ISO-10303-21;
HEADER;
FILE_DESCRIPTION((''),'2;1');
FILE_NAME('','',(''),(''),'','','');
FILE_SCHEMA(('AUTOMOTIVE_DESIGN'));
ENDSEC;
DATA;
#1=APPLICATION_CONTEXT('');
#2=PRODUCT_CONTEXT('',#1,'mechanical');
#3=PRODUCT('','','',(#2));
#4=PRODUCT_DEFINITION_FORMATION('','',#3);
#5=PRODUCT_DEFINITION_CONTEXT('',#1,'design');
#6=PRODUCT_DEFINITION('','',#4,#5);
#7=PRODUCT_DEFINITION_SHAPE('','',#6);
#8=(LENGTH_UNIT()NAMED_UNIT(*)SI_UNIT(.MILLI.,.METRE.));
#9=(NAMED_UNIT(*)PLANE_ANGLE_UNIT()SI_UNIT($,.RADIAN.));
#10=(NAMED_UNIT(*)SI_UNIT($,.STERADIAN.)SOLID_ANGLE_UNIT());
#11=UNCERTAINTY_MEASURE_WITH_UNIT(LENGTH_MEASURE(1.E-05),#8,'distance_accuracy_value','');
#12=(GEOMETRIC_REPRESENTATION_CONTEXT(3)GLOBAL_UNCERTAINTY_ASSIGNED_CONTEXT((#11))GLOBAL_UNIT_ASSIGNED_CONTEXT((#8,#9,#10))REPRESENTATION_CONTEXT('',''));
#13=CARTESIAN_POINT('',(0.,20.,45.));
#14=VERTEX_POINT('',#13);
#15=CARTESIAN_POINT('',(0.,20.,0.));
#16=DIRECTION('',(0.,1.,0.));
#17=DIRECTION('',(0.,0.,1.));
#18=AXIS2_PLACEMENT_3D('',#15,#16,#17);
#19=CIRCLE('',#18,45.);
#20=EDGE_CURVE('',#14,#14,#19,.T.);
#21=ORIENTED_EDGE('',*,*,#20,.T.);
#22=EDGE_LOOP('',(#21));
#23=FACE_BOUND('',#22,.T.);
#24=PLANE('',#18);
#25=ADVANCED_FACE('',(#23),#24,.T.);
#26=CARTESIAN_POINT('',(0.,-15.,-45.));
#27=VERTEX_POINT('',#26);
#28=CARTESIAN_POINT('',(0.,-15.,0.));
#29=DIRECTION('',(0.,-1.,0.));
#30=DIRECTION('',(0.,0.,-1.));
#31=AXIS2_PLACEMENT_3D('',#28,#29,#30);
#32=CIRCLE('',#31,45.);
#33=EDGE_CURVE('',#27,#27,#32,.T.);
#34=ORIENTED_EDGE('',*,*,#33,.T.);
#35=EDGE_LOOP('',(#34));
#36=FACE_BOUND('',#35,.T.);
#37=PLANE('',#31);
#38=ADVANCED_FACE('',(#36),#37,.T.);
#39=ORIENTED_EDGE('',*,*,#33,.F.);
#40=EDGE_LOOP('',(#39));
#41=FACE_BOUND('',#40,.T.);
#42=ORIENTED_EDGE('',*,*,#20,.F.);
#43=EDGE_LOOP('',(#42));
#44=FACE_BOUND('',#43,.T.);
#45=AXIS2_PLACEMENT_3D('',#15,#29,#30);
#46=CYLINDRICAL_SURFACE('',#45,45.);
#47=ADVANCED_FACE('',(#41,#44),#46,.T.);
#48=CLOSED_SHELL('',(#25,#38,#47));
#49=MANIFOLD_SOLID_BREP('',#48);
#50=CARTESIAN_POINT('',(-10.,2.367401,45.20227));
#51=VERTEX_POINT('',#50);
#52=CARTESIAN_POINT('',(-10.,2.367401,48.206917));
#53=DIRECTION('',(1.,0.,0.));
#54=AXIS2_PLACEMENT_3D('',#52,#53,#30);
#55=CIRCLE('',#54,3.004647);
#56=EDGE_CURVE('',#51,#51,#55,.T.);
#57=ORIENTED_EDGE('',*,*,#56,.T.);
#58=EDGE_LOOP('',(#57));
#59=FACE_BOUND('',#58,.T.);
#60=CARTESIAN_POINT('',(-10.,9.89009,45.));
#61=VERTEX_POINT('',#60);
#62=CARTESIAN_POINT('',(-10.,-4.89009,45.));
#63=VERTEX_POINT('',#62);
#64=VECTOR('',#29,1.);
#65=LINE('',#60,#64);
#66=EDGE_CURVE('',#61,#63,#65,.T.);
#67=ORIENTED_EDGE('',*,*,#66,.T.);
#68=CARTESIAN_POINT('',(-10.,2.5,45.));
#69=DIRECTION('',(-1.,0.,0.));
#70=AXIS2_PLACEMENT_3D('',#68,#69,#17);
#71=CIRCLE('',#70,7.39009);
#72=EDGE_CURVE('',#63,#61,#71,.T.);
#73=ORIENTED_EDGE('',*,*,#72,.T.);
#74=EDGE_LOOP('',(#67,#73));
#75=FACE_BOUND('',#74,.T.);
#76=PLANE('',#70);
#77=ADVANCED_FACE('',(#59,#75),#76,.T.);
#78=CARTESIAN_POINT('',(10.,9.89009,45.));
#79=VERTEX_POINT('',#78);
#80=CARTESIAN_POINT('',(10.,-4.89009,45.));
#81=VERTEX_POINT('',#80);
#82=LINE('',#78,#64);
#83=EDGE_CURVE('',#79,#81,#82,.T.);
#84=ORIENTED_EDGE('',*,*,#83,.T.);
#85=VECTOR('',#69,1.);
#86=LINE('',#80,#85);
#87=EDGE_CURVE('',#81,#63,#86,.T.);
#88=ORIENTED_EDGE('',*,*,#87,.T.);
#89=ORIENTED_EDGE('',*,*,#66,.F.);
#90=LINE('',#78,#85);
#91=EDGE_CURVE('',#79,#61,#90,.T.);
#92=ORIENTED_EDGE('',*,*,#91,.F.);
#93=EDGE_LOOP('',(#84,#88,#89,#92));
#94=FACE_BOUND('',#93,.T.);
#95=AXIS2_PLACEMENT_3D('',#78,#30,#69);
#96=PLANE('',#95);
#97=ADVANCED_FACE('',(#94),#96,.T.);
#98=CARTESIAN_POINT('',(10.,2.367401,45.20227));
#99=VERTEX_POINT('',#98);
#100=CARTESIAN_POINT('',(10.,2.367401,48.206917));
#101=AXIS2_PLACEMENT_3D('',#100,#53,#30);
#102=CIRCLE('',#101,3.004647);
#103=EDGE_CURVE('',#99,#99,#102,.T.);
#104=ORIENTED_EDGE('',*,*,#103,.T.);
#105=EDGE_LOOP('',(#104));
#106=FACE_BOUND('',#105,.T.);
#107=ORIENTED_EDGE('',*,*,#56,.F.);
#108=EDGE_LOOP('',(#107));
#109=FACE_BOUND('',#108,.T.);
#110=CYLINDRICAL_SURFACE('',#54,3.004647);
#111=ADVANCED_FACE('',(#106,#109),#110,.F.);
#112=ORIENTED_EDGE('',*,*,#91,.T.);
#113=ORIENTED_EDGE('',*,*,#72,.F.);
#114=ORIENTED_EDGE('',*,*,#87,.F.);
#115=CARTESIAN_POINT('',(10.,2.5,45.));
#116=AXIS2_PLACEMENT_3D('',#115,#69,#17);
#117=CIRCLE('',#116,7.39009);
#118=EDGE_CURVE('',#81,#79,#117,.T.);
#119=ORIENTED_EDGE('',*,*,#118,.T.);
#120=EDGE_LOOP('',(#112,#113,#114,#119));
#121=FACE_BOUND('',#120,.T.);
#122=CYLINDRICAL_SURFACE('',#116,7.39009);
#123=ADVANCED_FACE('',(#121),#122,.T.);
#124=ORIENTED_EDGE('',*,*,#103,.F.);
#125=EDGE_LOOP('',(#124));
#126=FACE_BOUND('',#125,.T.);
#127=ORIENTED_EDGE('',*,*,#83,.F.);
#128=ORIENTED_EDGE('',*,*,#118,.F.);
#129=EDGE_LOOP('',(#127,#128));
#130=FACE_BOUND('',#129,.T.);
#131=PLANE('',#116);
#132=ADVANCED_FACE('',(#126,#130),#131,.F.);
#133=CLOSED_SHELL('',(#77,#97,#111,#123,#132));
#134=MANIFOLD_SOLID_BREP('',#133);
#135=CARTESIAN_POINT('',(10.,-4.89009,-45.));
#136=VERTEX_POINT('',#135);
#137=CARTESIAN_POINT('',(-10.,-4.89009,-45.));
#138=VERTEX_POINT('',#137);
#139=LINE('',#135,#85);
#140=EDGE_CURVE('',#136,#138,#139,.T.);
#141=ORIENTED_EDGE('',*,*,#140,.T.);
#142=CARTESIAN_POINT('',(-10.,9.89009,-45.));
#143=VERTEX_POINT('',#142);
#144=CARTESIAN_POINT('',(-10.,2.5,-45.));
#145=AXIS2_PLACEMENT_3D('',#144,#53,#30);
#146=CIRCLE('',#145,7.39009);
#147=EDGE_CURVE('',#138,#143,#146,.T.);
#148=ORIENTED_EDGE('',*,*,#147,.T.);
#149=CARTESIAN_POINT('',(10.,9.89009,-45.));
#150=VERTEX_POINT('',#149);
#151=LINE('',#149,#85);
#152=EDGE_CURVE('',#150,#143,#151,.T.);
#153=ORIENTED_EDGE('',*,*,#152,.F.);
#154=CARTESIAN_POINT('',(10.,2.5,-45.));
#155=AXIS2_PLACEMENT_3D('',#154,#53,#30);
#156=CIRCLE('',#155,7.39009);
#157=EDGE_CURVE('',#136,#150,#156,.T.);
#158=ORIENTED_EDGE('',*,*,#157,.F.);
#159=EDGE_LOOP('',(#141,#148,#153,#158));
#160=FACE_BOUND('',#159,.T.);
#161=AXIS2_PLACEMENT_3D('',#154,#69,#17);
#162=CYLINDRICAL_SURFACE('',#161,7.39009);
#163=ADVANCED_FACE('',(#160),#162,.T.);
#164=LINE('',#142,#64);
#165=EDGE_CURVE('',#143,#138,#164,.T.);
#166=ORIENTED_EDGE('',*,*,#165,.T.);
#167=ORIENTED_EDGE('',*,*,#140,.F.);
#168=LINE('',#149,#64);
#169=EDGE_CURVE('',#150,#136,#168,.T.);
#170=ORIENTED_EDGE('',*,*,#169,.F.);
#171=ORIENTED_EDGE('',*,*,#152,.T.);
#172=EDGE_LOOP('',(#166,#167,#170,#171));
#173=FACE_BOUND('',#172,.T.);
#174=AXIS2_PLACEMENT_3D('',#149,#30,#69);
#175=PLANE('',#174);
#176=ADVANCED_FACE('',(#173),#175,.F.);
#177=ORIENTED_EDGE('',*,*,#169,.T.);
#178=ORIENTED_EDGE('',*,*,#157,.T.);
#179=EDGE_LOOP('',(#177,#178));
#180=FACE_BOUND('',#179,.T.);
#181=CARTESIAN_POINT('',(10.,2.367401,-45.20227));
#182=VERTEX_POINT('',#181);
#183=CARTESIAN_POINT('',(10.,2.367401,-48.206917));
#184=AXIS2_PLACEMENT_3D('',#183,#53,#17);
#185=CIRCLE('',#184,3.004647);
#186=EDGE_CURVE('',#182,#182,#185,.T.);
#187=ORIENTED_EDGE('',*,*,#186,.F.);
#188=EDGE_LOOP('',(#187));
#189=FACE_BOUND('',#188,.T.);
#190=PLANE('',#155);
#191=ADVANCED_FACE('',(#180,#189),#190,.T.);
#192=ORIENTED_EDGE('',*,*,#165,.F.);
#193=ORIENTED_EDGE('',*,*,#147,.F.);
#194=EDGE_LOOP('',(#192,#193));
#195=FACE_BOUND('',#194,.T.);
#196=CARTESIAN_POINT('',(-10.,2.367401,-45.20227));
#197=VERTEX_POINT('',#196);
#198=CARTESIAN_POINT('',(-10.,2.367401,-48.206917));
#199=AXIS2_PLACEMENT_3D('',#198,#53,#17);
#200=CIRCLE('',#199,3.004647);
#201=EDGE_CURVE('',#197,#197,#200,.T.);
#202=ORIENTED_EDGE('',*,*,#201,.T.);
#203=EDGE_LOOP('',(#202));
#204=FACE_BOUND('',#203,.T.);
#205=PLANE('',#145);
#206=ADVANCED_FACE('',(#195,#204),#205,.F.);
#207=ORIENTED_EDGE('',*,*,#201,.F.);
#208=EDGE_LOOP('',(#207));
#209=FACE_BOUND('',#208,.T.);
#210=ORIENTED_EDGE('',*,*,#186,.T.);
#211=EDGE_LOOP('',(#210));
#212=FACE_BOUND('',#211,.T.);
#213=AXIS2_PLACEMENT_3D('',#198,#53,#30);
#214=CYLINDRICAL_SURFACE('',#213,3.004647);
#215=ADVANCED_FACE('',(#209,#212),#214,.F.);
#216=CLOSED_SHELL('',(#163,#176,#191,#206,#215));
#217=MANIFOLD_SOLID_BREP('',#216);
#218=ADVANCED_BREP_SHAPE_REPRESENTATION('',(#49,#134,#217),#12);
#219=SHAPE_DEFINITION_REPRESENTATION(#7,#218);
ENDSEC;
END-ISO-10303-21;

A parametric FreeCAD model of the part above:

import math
import FreeCAD as App
import Part
import Sketcher
from FreeCAD import Vector

doc = App.newDocument("Part")
params = doc.addObject("Spreadsheet::Sheet", "Params")
for row, (alias, value) in enumerate([
    ("sketch1_diameter", "90 mm"),
    ("pad1_length", "20 mm"),
    ("sketch2_diameter", "90 mm"),
    ("pad2_length", "15 mm"),
    ("pad3_length", "20 mm"),
    ("pad4_length", "20 mm"),
    ("pad5_length", "20 mm"),
], start=1):
    params.set(f"A{row}", alias)
    params.set(f"B{row}", "=" + value)
    params.setAlias(f"B{row}", alias)

body = doc.addObject("PartDesign::Body", "Body")

sketch1 = body.newObject("Sketcher::SketchObject", "Sketch")
sketch1.AttachmentSupport = (doc.getObject("XZ_Plane"), [""])
sketch1.MapMode = "FlatFace"
sketch1.addGeometry(Part.Circle(Vector(0, 0, 0), Vector(0, 0, 1), 45), False)
sketch1.addConstraint(Sketcher.Constraint("Coincident", 0, 3, -1, 1))
sketch1.addConstraint(Sketcher.Constraint("Diameter", 0, 90.0))
sketch1.setExpression("Constraints[1]", "Params.sketch1_diameter")
pad1 = body.newObject("PartDesign::Pad", "Pad")
pad1.Profile = sketch1
pad1.setExpression("Length", "Params.pad1_length")
pad1.Reversed = True

sketch2 = body.newObject("Sketcher::SketchObject", "Sketch001")
sketch2.AttachmentSupport = (doc.getObject("XZ_Plane"), [""])
sketch2.MapMode = "FlatFace"
sketch2.AttachmentOffset = App.Placement(Vector(0, 0, 15), App.Rotation())
sketch2.addGeometry(Part.Circle(Vector(0, 0, 0), Vector(0, 0, 1), 45), False)
sketch2.addConstraint(Sketcher.Constraint("Coincident", 0, 3, -1, 1))
sketch2.addConstraint(Sketcher.Constraint("Diameter", 0, 90.0))
sketch2.setExpression("Constraints[1]", "Params.sketch2_diameter")
pad2 = body.newObject("PartDesign::Pad", "Pad001")
pad2.Profile = sketch2
pad2.setExpression("Length", "Params.pad2_length")
pad2.Reversed = True
body2 = doc.addObject("PartDesign::Body", "Body001")

sketch3 = body2.newObject("Sketcher::SketchObject", "Sketch002")
sketch3.AttachmentSupport = (doc.getObject("YZ_Plane001"), [""])
sketch3.MapMode = "FlatFace"
sketch3.addGeometry(Part.LineSegment(Vector(10, -45, 0), Vector(-5, -45, 0)), False)
sketch3.addGeometry(Part.ArcOfCircle(Part.Circle(Vector(2, -45, 0), Vector(0, 0, 1), 7), math.radians(180), math.radians(360)), False)
sketch3.addConstraint(Sketcher.Constraint("Coincident", 0, 1, 1, 2))
sketch3.addConstraint(Sketcher.Constraint("Coincident", 1, 1, 0, 2))
sketch3.addConstraint(Sketcher.Constraint("Horizontal", 0))
sketch3.addConstraint(Sketcher.Constraint("Horizontal", 1, 3, 0, 1))
sketch3.addConstraint(Sketcher.Constraint("DistanceY", 1, 3, -1, 1, 45.0))
sketch3.addConstraint(Sketcher.Constraint("DistanceX", -1, 1, 1, 3, 2.5))
sketch3.addConstraint(Sketcher.Constraint("Radius", 1, 7.39009))
pad3 = body2.newObject("PartDesign::Pad", "Pad002")
pad3.Profile = sketch3
pad3.setExpression("Length", "Params.pad3_length")
pad3.Midplane = True
body3 = doc.addObject("PartDesign::Body", "Body002")

sketch4 = body3.newObject("Sketcher::SketchObject", "Sketch003")
sketch4.AttachmentSupport = (doc.getObject("YZ_Plane002"), [""])
sketch4.MapMode = "FlatFace"
sketch4.addGeometry(Part.LineSegment(Vector(-5, 45, 0), Vector(10, 45, 0)), False)
sketch4.addGeometry(Part.ArcOfCircle(Part.Circle(Vector(2, 45, 0), Vector(0, 0, 1), 7), math.radians(0), math.radians(180)), False)
sketch4.addConstraint(Sketcher.Constraint("Coincident", 0, 1, 1, 2))
sketch4.addConstraint(Sketcher.Constraint("Coincident", 1, 1, 0, 2))
sketch4.addConstraint(Sketcher.Constraint("Horizontal", 0))
sketch4.addConstraint(Sketcher.Constraint("Horizontal", 1, 3, 0, 1))
sketch4.addConstraint(Sketcher.Constraint("DistanceY", -1, 1, 1, 3, 45.0))
sketch4.addConstraint(Sketcher.Constraint("DistanceX", -1, 1, 1, 3, 2.5))
sketch4.addConstraint(Sketcher.Constraint("Radius", 1, 7.39009))
pad4 = body3.newObject("PartDesign::Pad", "Pad003")
pad4.Profile = sketch4
pad4.setExpression("Length", "Params.pad4_length")
pad4.Midplane = True
body4 = doc.addObject("PartDesign::Body", "Body003")
body4.AllowCompound = True

sketch5 = body4.newObject("Sketcher::SketchObject", "Sketch004")
sketch5.AttachmentSupport = (doc.getObject("YZ_Plane003"), [""])
sketch5.MapMode = "FlatFace"
sketch5.AttachmentOffset = App.Placement(Vector(0, 0, 10), App.Rotation())
sketch5.addGeometry(Part.Circle(Vector(2.4, 48.2, 0), Vector(0, 0, 1), 3), False)
sketch5.addGeometry(Part.Circle(Vector(2.4, -48.2, 0), Vector(0, 0, 1), 3), False)
sketch5.addConstraint(Sketcher.Constraint("Equal", 0, 1))
sketch5.addConstraint(Sketcher.Constraint("Symmetric", 0, 3, 1, 3, -1))
sketch5.addConstraint(Sketcher.Constraint("Diameter", 0, 6.009294))
sketch5.addConstraint(Sketcher.Constraint("DistanceX", -1, 1, 0, 3, 2.367401))
sketch5.addConstraint(Sketcher.Constraint("DistanceY", -1, 1, 0, 3, 48.206917))
pad5 = body4.newObject("PartDesign::Pad", "Pad004")
pad5.Profile = sketch5
pad5.setExpression("Length", "Params.pad5_length")
pad5.Reversed = True
doc.recompute()

body5 = doc.addObject("PartDesign::Body", "Body004")
body5.BaseFeature = body4
boolean = body2.newObject("PartDesign::Boolean", "Boolean")
boolean.Type = "Cut"
boolean.addObjects([body5])
doc.recompute()

boolean2 = body3.newObject("PartDesign::Boolean", "Boolean001")
boolean2.Type = "Cut"
boolean2.addObjects([body4])

doc.recompute()
